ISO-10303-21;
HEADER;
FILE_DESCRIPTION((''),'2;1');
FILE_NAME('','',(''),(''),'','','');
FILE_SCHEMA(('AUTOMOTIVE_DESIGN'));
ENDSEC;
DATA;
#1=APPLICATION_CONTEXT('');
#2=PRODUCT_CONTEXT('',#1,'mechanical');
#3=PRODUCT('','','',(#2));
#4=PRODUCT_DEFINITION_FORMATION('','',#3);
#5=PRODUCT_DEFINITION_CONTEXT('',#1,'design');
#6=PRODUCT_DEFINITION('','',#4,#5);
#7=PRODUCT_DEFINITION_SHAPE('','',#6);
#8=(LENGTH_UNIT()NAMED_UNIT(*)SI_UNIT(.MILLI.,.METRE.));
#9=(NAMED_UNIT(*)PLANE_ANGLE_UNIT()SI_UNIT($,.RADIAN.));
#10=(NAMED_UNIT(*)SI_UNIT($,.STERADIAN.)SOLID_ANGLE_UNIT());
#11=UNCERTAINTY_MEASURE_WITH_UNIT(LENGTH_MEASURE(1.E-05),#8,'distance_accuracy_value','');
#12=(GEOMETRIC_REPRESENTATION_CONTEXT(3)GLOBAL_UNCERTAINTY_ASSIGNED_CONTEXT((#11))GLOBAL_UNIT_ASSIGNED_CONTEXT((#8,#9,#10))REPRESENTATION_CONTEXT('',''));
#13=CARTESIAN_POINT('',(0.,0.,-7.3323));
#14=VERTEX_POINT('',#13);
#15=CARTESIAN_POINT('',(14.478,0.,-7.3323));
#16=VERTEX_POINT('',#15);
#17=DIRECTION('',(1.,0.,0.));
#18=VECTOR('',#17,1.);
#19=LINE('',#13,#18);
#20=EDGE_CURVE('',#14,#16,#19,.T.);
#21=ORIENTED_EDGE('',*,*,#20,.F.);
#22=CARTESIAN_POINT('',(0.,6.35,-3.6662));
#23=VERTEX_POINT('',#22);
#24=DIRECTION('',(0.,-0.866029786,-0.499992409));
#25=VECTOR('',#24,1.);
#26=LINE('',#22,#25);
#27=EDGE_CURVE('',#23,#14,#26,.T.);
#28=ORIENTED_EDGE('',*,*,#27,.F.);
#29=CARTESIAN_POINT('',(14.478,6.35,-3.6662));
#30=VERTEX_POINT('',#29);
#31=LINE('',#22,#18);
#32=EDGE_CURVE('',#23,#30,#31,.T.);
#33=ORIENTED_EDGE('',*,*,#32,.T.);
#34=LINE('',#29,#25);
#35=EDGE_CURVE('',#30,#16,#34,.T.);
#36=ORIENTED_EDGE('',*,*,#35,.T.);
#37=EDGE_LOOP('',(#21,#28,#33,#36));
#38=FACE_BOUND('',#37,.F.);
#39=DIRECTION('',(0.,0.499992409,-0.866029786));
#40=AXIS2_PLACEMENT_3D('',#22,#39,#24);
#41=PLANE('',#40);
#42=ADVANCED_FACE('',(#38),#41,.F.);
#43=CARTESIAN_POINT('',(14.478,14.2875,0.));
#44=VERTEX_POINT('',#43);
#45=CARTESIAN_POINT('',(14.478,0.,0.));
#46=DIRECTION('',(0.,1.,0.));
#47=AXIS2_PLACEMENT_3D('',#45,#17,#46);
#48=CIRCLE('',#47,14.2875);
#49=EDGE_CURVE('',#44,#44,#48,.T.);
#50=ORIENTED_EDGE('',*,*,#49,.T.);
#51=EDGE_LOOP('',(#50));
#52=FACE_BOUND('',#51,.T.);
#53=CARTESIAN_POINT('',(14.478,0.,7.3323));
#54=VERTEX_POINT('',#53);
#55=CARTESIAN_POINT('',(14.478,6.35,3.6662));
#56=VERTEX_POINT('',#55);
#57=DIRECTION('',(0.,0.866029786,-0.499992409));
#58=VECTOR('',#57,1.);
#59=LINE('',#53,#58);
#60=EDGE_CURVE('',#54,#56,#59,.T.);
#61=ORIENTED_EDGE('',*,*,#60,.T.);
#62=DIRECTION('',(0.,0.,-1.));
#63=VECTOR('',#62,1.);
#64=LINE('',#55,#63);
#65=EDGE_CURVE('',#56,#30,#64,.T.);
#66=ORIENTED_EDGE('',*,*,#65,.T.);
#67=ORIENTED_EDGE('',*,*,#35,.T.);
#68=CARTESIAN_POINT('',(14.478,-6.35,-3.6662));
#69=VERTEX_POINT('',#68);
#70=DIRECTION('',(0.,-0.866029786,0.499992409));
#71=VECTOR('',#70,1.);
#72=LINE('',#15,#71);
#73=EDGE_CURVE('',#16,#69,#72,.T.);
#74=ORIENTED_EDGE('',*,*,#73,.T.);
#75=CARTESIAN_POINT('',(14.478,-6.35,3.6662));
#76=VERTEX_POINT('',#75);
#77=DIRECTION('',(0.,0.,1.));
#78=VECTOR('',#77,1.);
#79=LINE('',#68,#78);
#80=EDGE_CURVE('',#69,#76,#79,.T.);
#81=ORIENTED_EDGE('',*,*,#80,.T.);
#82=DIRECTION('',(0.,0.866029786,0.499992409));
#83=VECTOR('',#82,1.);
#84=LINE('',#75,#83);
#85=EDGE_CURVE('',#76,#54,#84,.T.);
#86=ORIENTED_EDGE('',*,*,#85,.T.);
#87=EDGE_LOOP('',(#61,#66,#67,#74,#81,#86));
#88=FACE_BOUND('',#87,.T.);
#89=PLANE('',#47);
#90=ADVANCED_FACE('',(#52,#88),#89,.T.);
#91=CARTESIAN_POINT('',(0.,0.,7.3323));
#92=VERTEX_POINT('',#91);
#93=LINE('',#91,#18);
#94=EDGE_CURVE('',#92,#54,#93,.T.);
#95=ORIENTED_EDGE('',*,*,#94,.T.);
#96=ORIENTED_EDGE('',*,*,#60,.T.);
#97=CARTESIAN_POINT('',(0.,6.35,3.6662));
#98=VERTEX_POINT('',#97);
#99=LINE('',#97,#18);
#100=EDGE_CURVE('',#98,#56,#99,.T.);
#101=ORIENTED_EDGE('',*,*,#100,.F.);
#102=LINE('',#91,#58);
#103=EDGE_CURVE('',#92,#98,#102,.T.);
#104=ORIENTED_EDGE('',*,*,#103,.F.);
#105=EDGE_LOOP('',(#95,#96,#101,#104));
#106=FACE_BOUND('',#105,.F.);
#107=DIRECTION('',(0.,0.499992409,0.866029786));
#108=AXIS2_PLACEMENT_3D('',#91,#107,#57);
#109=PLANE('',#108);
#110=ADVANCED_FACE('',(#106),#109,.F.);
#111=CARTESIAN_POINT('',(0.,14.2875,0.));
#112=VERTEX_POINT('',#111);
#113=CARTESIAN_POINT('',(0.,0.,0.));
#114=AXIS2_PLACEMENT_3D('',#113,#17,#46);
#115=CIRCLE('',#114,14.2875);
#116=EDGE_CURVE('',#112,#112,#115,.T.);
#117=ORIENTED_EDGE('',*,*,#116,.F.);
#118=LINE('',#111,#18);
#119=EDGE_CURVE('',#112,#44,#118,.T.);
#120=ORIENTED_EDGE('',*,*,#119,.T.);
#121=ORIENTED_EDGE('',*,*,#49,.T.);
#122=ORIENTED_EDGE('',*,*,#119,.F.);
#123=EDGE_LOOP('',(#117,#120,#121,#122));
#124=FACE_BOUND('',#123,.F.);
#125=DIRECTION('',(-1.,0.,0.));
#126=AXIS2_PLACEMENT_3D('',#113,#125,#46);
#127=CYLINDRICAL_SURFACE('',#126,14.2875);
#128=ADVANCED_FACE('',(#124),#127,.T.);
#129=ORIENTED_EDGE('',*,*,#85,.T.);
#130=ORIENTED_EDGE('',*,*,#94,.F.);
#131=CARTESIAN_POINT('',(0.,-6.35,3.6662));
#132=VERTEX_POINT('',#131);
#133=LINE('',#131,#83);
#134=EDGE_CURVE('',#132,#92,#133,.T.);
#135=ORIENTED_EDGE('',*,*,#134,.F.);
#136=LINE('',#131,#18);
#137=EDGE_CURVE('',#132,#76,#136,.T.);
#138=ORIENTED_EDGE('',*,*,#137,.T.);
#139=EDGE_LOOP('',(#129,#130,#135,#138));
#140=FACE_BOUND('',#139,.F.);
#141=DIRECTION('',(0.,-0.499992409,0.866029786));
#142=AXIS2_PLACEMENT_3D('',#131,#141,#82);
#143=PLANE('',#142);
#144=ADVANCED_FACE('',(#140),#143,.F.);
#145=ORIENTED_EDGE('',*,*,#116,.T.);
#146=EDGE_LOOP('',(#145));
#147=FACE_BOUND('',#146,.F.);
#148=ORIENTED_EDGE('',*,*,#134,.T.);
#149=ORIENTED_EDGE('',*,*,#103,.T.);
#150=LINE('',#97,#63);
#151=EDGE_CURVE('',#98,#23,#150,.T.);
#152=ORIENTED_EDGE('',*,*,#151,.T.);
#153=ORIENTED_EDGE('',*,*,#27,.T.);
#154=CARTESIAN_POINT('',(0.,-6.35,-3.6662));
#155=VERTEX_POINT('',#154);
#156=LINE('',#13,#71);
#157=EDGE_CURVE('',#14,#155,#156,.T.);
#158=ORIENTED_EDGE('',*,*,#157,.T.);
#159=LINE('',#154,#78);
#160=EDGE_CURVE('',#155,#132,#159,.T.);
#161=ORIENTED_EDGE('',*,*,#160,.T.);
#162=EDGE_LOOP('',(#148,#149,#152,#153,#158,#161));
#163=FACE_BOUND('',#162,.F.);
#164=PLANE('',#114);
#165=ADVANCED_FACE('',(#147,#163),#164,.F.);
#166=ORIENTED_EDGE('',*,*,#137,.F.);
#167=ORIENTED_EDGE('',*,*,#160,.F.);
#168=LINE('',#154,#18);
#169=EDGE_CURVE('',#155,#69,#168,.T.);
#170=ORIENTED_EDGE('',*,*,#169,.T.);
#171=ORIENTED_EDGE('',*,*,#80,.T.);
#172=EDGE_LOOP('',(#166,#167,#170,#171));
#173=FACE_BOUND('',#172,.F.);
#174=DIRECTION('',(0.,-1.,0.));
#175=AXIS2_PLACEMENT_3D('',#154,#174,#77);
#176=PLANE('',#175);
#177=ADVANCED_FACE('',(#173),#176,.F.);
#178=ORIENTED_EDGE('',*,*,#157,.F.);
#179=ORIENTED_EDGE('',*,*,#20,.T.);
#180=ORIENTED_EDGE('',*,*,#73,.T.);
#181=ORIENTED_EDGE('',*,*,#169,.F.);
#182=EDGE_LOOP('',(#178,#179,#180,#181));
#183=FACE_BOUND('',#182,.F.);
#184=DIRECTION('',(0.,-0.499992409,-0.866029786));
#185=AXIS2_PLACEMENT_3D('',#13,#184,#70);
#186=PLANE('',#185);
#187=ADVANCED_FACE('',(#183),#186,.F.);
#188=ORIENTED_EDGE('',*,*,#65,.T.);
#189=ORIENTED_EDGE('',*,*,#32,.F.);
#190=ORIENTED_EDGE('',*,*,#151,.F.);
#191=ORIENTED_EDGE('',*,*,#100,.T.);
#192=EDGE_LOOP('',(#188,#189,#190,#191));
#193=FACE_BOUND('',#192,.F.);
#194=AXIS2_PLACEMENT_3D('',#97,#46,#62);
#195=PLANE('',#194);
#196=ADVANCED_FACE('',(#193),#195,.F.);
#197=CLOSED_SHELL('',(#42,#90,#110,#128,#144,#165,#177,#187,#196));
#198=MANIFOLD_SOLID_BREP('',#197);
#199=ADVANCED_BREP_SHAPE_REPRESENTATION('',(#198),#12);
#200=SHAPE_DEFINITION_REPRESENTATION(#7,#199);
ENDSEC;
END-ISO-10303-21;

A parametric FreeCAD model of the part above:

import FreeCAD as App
import Part
import Sketcher

V = App.Vector
Q = App.Units.Quantity

doc = App.newDocument("Part")
params = doc.addObject("Spreadsheet::Sheet", "Params")
for row, (alias, value) in enumerate([
    ("sketch1_diameter", "1.125 in"),
    ("pad1_length", "0.57 in"),
], start=1):
    params.set(f"A{row}", alias)
    params.set(f"B{row}", "=" + value)
    params.setAlias(f"B{row}", alias)

body = doc.addObject("PartDesign::Body", "Body")

# Sketch on YZ plane
sketch1 = body.newObject("Sketcher::SketchObject", "Sketch")
sketch1.AttachmentSupport = (doc.getObject("YZ_Plane"), [""])
sketch1.MapMode = "FlatFace"
sketch1.addGeometry([
    Part.Circle(V(0, 0, 0), V(0, 0, 1), 14.2875),  # 0
    Part.LineSegment(V(6.35, -3.6662, 0), V(0, -7.3323, 0)),  # 1
    Part.LineSegment(V(0, -7.3323, 0), V(-6.35, -3.6662, 0)),  # 2
    Part.LineSegment(V(-6.35, -3.6662, 0), V(-6.35, 3.6662, 0)),  # 3
    Part.LineSegment(V(-6.35, 3.6662, 0), V(0, 7.3323, 0)),  # 4
    Part.LineSegment(V(0, 7.3323, 0), V(6.35, 3.6662, 0)),  # 5
    Part.LineSegment(V(6.35, 3.6662, 0), V(6.35, -3.6662, 0)),  # 6
], False)
sketch1.addConstraint([
    Sketcher.Constraint("Coincident", 1, 2, 2, 1),
    Sketcher.Constraint("Coincident", 2, 2, 3, 1),
    Sketcher.Constraint("Coincident", 3, 2, 4, 1),
    Sketcher.Constraint("Coincident", 4, 2, 5, 1),
    Sketcher.Constraint("Coincident", 5, 2, 6, 1),
    Sketcher.Constraint("Coincident", 6, 2, 1, 1),
    Sketcher.Constraint("Vertical", 3),
    Sketcher.Constraint("Vertical", 6),
    Sketcher.Constraint("Coincident", 0, 3, -1, 1),
    Sketcher.Constraint("Symmetric", 1, 2, 4, 2, -1, 1),
    Sketcher.Constraint("Symmetric", 2, 2, 5, 2, -1, 1),
    Sketcher.Constraint("PointOnObject", 1, 2, -2),
    Sketcher.Constraint("Parallel", 1, 4),
    Sketcher.Constraint("Horizontal", 3, 2, 5, 2),
    Sketcher.Constraint("Diameter", 0, Q("1.125 in")),
    Sketcher.Constraint("DistanceX", 3, 2, 5, 2, Q("0.5 in")),
    Sketcher.Constraint("Angle", 1, Q("-150.0005 deg")),
    Sketcher.Constraint("DistanceY", 1, 2, 3, 2, Q("0.433 in")),
])
sketch1.setExpression("Constraints[14]", "Params.sketch1_diameter")
pad1 = body.newObject("PartDesign::Pad", "Pad")
pad1.Profile = sketch1
pad1.setExpression("Length", "Params.pad1_length")

doc.recompute()
